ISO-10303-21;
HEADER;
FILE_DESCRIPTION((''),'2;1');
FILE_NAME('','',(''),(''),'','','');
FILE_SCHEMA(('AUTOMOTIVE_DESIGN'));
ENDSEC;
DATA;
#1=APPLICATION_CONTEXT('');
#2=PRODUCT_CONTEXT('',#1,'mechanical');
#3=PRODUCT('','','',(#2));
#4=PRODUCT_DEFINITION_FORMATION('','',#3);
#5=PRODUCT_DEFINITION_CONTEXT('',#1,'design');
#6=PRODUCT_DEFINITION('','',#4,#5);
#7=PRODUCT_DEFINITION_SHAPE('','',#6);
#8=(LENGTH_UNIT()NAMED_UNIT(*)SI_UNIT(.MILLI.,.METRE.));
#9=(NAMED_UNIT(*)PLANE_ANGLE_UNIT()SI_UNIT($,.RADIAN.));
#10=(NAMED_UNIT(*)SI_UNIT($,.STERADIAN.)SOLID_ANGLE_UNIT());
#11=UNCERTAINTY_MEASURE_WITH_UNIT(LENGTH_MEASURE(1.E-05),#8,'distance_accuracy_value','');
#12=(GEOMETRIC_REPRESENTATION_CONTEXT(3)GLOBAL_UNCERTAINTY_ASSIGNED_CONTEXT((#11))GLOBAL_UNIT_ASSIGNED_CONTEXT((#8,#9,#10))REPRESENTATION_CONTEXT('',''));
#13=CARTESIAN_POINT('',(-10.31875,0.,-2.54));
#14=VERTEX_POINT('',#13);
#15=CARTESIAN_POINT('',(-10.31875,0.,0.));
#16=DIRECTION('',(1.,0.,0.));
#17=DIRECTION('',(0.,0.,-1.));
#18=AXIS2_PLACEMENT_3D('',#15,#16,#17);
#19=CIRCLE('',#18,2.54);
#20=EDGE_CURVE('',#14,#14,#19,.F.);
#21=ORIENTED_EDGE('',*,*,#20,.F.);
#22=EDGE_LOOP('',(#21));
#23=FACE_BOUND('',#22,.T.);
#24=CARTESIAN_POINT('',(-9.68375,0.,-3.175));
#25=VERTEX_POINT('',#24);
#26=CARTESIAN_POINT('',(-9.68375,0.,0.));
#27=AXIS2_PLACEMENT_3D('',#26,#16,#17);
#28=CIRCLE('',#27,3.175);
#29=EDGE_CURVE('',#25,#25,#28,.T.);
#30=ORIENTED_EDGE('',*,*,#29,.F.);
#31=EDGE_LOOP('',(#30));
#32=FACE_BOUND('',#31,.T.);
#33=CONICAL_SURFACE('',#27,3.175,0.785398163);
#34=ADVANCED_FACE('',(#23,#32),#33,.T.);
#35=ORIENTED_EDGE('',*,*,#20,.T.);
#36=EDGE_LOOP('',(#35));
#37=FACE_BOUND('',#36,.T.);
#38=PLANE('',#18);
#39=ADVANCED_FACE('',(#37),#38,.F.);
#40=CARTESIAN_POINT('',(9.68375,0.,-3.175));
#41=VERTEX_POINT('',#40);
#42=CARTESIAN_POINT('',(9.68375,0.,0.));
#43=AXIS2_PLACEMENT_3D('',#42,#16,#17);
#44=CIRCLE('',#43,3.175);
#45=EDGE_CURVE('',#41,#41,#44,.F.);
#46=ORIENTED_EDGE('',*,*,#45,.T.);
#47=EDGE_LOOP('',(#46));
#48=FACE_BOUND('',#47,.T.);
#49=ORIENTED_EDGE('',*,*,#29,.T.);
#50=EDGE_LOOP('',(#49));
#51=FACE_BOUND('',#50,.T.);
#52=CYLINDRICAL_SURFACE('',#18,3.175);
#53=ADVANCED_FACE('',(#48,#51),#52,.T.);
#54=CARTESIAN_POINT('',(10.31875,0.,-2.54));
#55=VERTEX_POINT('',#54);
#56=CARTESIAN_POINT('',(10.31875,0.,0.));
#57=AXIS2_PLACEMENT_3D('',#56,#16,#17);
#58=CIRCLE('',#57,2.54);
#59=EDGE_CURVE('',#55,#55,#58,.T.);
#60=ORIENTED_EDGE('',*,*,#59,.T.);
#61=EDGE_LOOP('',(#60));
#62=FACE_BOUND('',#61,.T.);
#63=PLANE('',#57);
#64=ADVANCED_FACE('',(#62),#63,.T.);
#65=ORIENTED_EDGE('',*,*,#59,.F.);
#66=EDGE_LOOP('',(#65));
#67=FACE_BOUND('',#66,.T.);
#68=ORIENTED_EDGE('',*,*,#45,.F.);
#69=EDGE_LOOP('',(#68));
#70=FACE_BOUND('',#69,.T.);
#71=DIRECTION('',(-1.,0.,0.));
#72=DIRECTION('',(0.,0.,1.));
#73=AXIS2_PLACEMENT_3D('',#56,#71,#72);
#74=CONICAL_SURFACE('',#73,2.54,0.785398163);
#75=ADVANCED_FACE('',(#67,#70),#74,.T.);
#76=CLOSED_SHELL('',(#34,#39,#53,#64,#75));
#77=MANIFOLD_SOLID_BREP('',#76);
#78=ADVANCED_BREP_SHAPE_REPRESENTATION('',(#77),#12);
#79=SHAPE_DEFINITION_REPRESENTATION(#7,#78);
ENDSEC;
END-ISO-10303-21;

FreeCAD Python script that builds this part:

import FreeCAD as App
import Part
import Sketcher
Q = App.Units.Quantity


def edges_at(feature, points):
    """Names of the edges that pass closest to the given points."""
    edges = feature.Shape.Edges
    near = lambda p: min(range(len(edges)), key=lambda i: edges[i].distToShape(Part.Vertex(*p))[0])
    return sorted({f"Edge{near(p) + 1}" for p in points})

doc = App.newDocument("Part")
body = doc.addObject("PartDesign::Body", "Body")

sketch1 = body.newObject("Sketcher::SketchObject", "Sketch")
sketch1.AttachmentSupport = (doc.getObject("YZ_Plane"), [""])
sketch1.MapMode = "FlatFace"
sketch1.addGeometry(Part.Circle(App.Vector(0, 0, 0), App.Vector(0, 0, 1), 3.2), False)
sketch1.addConstraint([
    Sketcher.Constraint("Coincident", 0, 3, -1, 1),
    Sketcher.Constraint("Diameter", 0, Q("0.25 in")),
])
pad1 = body.newObject("PartDesign::Pad", "Pad")
pad1.Profile = sketch1
pad1.Type = "TwoLengths"
pad1.Length = Q("0.40625 in")
pad1.Length2 = Q("0.40625 in")
doc.recompute()

chamfer = body.newObject("PartDesign::Chamfer", "Chamfer")
chamfer.Base = (pad1, edges_at(pad1, [(-10.319, 0, 3.175), (10.319, 0, 3.175)]))
chamfer.Size = Q("0.025 in")

doc.recompute()
